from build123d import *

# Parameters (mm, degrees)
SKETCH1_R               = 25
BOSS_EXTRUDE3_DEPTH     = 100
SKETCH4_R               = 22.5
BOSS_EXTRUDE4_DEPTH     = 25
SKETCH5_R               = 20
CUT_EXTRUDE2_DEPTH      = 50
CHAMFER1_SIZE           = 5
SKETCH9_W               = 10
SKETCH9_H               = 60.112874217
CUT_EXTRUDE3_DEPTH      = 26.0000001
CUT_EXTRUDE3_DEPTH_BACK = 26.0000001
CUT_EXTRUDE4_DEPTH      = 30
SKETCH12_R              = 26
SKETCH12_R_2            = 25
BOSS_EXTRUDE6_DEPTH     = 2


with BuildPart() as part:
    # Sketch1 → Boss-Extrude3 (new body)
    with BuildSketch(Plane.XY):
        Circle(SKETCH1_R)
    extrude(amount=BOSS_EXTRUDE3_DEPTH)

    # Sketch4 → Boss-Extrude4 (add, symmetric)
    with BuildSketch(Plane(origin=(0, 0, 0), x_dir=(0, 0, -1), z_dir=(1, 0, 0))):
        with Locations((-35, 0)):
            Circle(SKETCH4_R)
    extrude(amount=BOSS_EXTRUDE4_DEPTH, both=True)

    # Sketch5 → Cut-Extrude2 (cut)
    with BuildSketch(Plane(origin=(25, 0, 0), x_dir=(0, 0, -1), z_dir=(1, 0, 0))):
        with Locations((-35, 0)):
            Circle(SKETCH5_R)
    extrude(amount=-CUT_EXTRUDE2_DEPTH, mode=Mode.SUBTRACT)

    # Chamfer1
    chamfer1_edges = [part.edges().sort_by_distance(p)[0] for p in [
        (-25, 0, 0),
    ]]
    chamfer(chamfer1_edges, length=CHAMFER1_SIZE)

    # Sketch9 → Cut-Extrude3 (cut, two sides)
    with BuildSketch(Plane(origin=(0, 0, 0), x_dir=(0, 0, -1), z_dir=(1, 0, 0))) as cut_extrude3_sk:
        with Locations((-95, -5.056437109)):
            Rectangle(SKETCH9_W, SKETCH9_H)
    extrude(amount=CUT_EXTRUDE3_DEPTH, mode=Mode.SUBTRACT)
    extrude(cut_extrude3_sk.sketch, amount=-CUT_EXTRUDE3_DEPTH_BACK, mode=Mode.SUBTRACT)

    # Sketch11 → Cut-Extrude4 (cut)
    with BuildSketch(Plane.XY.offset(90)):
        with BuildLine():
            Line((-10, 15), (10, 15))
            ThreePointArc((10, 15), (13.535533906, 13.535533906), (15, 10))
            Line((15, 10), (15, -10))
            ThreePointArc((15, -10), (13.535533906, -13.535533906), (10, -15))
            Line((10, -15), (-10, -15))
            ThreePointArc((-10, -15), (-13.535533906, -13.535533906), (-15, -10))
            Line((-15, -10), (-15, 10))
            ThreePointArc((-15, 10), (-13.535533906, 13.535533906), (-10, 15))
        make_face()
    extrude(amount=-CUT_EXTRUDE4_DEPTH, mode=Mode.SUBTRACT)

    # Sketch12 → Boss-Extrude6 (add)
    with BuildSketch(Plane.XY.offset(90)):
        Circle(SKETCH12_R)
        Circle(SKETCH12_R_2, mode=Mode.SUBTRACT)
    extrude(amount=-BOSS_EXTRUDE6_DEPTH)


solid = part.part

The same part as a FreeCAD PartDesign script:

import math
import FreeCAD as App
import Part
import Sketcher

V = App.Vector


def edges_at(feature, points):
    """Names of the edges that pass closest to the given points."""
    edges = feature.Shape.Edges
    near = lambda p: min(range(len(edges)), key=lambda i: edges[i].distToShape(Part.Vertex(*p))[0])
    return sorted({f"Edge{near(p) + 1}" for p in points})

doc = App.newDocument("Part")
body = doc.addObject("PartDesign::Body", "Body")

sketch1 = body.newObject("Sketcher::SketchObject", "Sketch")
sketch1.AttachmentSupport = (doc.getObject("XY_Plane"), [""])
sketch1.MapMode = "FlatFace"
sketch1.addGeometry(Part.Circle(V(0, 0, 0), V(0, 0, 1), 25), False)
sketch1.addConstraint([
    Sketcher.Constraint("Coincident", 0, 3, -1, 1),
    Sketcher.Constraint("Diameter", 0, 50.0),
])
pad1 = body.newObject("PartDesign::Pad", "Pad")
pad1.Profile = sketch1
pad1.Length = 100

sketch2 = body.newObject("Sketcher::SketchObject", "Sketch001")
sketch2.AttachmentSupport = (doc.getObject("YZ_Plane"), [""])
sketch2.MapMode = "FlatFace"
sketch2.addGeometry(Part.Circle(V(0, 35, 0), V(0, 0, 1), 22.5), False)
sketch2.addConstraint([
    Sketcher.Constraint("PointOnObject", 0, 3, -2),
    Sketcher.Constraint("Diameter", 0, 45.0),
    Sketcher.Constraint("DistanceY", -1, 1, 0, 3, 35.0),
])
pad2 = body.newObject("PartDesign::Pad", "Pad001")
pad2.Profile = sketch2
pad2.Length = 50
pad2.Midplane = True

sketch3 = body.newObject("Sketcher::SketchObject", "Sketch002")
sketch3.AttachmentSupport = (doc.getObject("YZ_Plane"), [""])
sketch3.MapMode = "FlatFace"
sketch3.AttachmentOffset = App.Placement(V(0, 0, 25), App.Rotation())
sketch3.addGeometry(Part.Circle(V(0, 35, 0), V(0, 0, 1), 20), False)
sketch3.addConstraint([
    Sketcher.Constraint("PointOnObject", 0, 3, -2),
    Sketcher.Constraint("Diameter", 0, 40.0),
    Sketcher.Constraint("DistanceY", -1, 1, 0, 3, 35.0),
])
pocket1 = body.newObject("PartDesign::Pocket", "Pocket")
pocket1.Profile = sketch3
pocket1.Length = 50
doc.recompute()

chamfer = body.newObject("PartDesign::Chamfer", "Chamfer")
chamfer.Base = (pocket1, edges_at(pocket1, [(-25, 0, 0)]))
chamfer.Size = 5

sketch4 = body.newObject("Sketcher::SketchObject", "Sketch003")
sketch4.AttachmentSupport = (doc.getObject("YZ_Plane"), [""])
sketch4.MapMode = "FlatFace"
sketch4.addGeometry([
    Part.LineSegment(V(25, 100, 0), V(-35.112874, 100, 0)),
    Part.LineSegment(V(-35.112874, 100, 0), V(-35.112874, 90, 0)),
    Part.LineSegment(V(-35.112874, 90, 0), V(25, 90, 0)),
    Part.LineSegment(V(25, 90, 0), V(25, 100, 0)),
], False)
sketch4.addConstraint([
    Sketcher.Constraint("Coincident", 0, 2, 1, 1),
    Sketcher.Constraint("Coincident", 1, 2, 2, 1),
    Sketcher.Constraint("Coincident", 2, 2, 3, 1),
    Sketcher.Constraint("Coincident", 3, 2, 0, 1),
    Sketcher.Constraint("Horizontal", 0),
    Sketcher.Constraint("Vertical", 1),
    Sketcher.Constraint("Horizontal", 2),
    Sketcher.Constraint("Vertical", 3),
    Sketcher.Constraint("DistanceY", 1, 2, 1, 1, 10.0),
    Sketcher.Constraint("DistanceY", -1, 1, 0, 2, 100.0),
    Sketcher.Constraint("DistanceX", -1, 1, 2, 2, 25.0),
    Sketcher.Constraint("DistanceX", 0, 2, 0, 1, 60.112874),
])
pocket2 = body.newObject("PartDesign::Pocket", "Pocket001")
pocket2.Profile = sketch4
pocket2.Type = "ThroughAll"
pocket2.Midplane = True

sketch5 = body.newObject("Sketcher::SketchObject", "Sketch004")
sketch5.AttachmentSupport = (doc.getObject("XY_Plane"), [""])
sketch5.MapMode = "FlatFace"
sketch5.AttachmentOffset = App.Placement(V(0, 0, 90), App.Rotation())
sketch5.addGeometry([
    Part.LineSegment(V(10, 15, 0), V(-10, 15, 0)),
    Part.ArcOfCircle(Part.Circle(V(-10, 10, 0), V(0, 0, 1), 5), math.radians(90), math.radians(180)),
    Part.LineSegment(V(-15, 10, 0), V(-15, -10, 0)),
    Part.ArcOfCircle(Part.Circle(V(-10, -10, 0), V(0, 0, 1), 5), math.radians(180), math.radians(270)),
    Part.LineSegment(V(-10, -15, 0), V(10, -15, 0)),
    Part.ArcOfCircle(Part.Circle(V(10, -10, 0), V(0, 0, 1), 5), math.radians(-90), math.radians(0)),
    Part.LineSegment(V(15, -10, 0), V(15, 10, 0)),
    Part.ArcOfCircle(Part.Circle(V(10, 10, 0), V(0, 0, 1), 5), math.radians(0), math.radians(90)),
], False)
sketch5.addConstraint([
    Sketcher.Constraint("Tangent", 0, 2, 1, 1),
    Sketcher.Constraint("Tangent", 1, 2, 2, 1),
    Sketcher.Constraint("Tangent", 2, 2, 3, 1),
    Sketcher.Constraint("Tangent", 3, 2, 4, 1),
    Sketcher.Constraint("Tangent", 4, 2, 5, 1),
    Sketcher.Constraint("Tangent", 5, 2, 6, 1),
    Sketcher.Constraint("Tangent", 6, 2, 7, 1),
    Sketcher.Constraint("Tangent", 7, 2, 0, 1),
    Sketcher.Constraint("Horizontal", 0),
    Sketcher.Constraint("Vertical", 2),
    Sketcher.Constraint("Horizontal", 4),
    Sketcher.Constraint("Vertical", 6),
    Sketcher.Constraint("Equal", 1, 3),
    Sketcher.Constraint("Equal", 3, 5),
    Sketcher.Constraint("Equal", 5, 7),
    Sketcher.Constraint("Symmetric", 1, 3, 5, 3, -1, 1),
    Sketcher.Constraint("Equal", 4, 2),
    Sketcher.Constraint("Radius", 1, 5.0),
    Sketcher.Constraint("DistanceX", 0, 2, 0, 1, 20.0),
])
pocket3 = body.newObject("PartDesign::Pocket", "Pocket002")
pocket3.Profile = sketch5
pocket3.Length = 30

sketch6 = body.newObject("Sketcher::SketchObject", "Sketch005")
sketch6.AttachmentSupport = (doc.getObject("XY_Plane"), [""])
sketch6.MapMode = "FlatFace"
sketch6.AttachmentOffset = App.Placement(V(0, 0, 90), App.Rotation())
sketch6.addGeometry([
    Part.Circle(V(0, 0, 0), V(0, 0, 1), 26),
    Part.Circle(V(0, 0, 0), V(0, 0, 1), 25),
], False)
sketch6.addConstraint([
    Sketcher.Constraint("Coincident", 0, 3, -1, 1),
    Sketcher.Constraint("Coincident", 1, 3, -1, 1),
    Sketcher.Constraint("Diameter", 0, 52.0),
    Sketcher.Constraint("Diameter", 1, 50.0),
])
pad3 = body.newObject("PartDesign::Pad", "Pad002")
pad3.Profile = sketch6
pad3.Length = 2
pad3.Reversed = True

doc.recompute()
